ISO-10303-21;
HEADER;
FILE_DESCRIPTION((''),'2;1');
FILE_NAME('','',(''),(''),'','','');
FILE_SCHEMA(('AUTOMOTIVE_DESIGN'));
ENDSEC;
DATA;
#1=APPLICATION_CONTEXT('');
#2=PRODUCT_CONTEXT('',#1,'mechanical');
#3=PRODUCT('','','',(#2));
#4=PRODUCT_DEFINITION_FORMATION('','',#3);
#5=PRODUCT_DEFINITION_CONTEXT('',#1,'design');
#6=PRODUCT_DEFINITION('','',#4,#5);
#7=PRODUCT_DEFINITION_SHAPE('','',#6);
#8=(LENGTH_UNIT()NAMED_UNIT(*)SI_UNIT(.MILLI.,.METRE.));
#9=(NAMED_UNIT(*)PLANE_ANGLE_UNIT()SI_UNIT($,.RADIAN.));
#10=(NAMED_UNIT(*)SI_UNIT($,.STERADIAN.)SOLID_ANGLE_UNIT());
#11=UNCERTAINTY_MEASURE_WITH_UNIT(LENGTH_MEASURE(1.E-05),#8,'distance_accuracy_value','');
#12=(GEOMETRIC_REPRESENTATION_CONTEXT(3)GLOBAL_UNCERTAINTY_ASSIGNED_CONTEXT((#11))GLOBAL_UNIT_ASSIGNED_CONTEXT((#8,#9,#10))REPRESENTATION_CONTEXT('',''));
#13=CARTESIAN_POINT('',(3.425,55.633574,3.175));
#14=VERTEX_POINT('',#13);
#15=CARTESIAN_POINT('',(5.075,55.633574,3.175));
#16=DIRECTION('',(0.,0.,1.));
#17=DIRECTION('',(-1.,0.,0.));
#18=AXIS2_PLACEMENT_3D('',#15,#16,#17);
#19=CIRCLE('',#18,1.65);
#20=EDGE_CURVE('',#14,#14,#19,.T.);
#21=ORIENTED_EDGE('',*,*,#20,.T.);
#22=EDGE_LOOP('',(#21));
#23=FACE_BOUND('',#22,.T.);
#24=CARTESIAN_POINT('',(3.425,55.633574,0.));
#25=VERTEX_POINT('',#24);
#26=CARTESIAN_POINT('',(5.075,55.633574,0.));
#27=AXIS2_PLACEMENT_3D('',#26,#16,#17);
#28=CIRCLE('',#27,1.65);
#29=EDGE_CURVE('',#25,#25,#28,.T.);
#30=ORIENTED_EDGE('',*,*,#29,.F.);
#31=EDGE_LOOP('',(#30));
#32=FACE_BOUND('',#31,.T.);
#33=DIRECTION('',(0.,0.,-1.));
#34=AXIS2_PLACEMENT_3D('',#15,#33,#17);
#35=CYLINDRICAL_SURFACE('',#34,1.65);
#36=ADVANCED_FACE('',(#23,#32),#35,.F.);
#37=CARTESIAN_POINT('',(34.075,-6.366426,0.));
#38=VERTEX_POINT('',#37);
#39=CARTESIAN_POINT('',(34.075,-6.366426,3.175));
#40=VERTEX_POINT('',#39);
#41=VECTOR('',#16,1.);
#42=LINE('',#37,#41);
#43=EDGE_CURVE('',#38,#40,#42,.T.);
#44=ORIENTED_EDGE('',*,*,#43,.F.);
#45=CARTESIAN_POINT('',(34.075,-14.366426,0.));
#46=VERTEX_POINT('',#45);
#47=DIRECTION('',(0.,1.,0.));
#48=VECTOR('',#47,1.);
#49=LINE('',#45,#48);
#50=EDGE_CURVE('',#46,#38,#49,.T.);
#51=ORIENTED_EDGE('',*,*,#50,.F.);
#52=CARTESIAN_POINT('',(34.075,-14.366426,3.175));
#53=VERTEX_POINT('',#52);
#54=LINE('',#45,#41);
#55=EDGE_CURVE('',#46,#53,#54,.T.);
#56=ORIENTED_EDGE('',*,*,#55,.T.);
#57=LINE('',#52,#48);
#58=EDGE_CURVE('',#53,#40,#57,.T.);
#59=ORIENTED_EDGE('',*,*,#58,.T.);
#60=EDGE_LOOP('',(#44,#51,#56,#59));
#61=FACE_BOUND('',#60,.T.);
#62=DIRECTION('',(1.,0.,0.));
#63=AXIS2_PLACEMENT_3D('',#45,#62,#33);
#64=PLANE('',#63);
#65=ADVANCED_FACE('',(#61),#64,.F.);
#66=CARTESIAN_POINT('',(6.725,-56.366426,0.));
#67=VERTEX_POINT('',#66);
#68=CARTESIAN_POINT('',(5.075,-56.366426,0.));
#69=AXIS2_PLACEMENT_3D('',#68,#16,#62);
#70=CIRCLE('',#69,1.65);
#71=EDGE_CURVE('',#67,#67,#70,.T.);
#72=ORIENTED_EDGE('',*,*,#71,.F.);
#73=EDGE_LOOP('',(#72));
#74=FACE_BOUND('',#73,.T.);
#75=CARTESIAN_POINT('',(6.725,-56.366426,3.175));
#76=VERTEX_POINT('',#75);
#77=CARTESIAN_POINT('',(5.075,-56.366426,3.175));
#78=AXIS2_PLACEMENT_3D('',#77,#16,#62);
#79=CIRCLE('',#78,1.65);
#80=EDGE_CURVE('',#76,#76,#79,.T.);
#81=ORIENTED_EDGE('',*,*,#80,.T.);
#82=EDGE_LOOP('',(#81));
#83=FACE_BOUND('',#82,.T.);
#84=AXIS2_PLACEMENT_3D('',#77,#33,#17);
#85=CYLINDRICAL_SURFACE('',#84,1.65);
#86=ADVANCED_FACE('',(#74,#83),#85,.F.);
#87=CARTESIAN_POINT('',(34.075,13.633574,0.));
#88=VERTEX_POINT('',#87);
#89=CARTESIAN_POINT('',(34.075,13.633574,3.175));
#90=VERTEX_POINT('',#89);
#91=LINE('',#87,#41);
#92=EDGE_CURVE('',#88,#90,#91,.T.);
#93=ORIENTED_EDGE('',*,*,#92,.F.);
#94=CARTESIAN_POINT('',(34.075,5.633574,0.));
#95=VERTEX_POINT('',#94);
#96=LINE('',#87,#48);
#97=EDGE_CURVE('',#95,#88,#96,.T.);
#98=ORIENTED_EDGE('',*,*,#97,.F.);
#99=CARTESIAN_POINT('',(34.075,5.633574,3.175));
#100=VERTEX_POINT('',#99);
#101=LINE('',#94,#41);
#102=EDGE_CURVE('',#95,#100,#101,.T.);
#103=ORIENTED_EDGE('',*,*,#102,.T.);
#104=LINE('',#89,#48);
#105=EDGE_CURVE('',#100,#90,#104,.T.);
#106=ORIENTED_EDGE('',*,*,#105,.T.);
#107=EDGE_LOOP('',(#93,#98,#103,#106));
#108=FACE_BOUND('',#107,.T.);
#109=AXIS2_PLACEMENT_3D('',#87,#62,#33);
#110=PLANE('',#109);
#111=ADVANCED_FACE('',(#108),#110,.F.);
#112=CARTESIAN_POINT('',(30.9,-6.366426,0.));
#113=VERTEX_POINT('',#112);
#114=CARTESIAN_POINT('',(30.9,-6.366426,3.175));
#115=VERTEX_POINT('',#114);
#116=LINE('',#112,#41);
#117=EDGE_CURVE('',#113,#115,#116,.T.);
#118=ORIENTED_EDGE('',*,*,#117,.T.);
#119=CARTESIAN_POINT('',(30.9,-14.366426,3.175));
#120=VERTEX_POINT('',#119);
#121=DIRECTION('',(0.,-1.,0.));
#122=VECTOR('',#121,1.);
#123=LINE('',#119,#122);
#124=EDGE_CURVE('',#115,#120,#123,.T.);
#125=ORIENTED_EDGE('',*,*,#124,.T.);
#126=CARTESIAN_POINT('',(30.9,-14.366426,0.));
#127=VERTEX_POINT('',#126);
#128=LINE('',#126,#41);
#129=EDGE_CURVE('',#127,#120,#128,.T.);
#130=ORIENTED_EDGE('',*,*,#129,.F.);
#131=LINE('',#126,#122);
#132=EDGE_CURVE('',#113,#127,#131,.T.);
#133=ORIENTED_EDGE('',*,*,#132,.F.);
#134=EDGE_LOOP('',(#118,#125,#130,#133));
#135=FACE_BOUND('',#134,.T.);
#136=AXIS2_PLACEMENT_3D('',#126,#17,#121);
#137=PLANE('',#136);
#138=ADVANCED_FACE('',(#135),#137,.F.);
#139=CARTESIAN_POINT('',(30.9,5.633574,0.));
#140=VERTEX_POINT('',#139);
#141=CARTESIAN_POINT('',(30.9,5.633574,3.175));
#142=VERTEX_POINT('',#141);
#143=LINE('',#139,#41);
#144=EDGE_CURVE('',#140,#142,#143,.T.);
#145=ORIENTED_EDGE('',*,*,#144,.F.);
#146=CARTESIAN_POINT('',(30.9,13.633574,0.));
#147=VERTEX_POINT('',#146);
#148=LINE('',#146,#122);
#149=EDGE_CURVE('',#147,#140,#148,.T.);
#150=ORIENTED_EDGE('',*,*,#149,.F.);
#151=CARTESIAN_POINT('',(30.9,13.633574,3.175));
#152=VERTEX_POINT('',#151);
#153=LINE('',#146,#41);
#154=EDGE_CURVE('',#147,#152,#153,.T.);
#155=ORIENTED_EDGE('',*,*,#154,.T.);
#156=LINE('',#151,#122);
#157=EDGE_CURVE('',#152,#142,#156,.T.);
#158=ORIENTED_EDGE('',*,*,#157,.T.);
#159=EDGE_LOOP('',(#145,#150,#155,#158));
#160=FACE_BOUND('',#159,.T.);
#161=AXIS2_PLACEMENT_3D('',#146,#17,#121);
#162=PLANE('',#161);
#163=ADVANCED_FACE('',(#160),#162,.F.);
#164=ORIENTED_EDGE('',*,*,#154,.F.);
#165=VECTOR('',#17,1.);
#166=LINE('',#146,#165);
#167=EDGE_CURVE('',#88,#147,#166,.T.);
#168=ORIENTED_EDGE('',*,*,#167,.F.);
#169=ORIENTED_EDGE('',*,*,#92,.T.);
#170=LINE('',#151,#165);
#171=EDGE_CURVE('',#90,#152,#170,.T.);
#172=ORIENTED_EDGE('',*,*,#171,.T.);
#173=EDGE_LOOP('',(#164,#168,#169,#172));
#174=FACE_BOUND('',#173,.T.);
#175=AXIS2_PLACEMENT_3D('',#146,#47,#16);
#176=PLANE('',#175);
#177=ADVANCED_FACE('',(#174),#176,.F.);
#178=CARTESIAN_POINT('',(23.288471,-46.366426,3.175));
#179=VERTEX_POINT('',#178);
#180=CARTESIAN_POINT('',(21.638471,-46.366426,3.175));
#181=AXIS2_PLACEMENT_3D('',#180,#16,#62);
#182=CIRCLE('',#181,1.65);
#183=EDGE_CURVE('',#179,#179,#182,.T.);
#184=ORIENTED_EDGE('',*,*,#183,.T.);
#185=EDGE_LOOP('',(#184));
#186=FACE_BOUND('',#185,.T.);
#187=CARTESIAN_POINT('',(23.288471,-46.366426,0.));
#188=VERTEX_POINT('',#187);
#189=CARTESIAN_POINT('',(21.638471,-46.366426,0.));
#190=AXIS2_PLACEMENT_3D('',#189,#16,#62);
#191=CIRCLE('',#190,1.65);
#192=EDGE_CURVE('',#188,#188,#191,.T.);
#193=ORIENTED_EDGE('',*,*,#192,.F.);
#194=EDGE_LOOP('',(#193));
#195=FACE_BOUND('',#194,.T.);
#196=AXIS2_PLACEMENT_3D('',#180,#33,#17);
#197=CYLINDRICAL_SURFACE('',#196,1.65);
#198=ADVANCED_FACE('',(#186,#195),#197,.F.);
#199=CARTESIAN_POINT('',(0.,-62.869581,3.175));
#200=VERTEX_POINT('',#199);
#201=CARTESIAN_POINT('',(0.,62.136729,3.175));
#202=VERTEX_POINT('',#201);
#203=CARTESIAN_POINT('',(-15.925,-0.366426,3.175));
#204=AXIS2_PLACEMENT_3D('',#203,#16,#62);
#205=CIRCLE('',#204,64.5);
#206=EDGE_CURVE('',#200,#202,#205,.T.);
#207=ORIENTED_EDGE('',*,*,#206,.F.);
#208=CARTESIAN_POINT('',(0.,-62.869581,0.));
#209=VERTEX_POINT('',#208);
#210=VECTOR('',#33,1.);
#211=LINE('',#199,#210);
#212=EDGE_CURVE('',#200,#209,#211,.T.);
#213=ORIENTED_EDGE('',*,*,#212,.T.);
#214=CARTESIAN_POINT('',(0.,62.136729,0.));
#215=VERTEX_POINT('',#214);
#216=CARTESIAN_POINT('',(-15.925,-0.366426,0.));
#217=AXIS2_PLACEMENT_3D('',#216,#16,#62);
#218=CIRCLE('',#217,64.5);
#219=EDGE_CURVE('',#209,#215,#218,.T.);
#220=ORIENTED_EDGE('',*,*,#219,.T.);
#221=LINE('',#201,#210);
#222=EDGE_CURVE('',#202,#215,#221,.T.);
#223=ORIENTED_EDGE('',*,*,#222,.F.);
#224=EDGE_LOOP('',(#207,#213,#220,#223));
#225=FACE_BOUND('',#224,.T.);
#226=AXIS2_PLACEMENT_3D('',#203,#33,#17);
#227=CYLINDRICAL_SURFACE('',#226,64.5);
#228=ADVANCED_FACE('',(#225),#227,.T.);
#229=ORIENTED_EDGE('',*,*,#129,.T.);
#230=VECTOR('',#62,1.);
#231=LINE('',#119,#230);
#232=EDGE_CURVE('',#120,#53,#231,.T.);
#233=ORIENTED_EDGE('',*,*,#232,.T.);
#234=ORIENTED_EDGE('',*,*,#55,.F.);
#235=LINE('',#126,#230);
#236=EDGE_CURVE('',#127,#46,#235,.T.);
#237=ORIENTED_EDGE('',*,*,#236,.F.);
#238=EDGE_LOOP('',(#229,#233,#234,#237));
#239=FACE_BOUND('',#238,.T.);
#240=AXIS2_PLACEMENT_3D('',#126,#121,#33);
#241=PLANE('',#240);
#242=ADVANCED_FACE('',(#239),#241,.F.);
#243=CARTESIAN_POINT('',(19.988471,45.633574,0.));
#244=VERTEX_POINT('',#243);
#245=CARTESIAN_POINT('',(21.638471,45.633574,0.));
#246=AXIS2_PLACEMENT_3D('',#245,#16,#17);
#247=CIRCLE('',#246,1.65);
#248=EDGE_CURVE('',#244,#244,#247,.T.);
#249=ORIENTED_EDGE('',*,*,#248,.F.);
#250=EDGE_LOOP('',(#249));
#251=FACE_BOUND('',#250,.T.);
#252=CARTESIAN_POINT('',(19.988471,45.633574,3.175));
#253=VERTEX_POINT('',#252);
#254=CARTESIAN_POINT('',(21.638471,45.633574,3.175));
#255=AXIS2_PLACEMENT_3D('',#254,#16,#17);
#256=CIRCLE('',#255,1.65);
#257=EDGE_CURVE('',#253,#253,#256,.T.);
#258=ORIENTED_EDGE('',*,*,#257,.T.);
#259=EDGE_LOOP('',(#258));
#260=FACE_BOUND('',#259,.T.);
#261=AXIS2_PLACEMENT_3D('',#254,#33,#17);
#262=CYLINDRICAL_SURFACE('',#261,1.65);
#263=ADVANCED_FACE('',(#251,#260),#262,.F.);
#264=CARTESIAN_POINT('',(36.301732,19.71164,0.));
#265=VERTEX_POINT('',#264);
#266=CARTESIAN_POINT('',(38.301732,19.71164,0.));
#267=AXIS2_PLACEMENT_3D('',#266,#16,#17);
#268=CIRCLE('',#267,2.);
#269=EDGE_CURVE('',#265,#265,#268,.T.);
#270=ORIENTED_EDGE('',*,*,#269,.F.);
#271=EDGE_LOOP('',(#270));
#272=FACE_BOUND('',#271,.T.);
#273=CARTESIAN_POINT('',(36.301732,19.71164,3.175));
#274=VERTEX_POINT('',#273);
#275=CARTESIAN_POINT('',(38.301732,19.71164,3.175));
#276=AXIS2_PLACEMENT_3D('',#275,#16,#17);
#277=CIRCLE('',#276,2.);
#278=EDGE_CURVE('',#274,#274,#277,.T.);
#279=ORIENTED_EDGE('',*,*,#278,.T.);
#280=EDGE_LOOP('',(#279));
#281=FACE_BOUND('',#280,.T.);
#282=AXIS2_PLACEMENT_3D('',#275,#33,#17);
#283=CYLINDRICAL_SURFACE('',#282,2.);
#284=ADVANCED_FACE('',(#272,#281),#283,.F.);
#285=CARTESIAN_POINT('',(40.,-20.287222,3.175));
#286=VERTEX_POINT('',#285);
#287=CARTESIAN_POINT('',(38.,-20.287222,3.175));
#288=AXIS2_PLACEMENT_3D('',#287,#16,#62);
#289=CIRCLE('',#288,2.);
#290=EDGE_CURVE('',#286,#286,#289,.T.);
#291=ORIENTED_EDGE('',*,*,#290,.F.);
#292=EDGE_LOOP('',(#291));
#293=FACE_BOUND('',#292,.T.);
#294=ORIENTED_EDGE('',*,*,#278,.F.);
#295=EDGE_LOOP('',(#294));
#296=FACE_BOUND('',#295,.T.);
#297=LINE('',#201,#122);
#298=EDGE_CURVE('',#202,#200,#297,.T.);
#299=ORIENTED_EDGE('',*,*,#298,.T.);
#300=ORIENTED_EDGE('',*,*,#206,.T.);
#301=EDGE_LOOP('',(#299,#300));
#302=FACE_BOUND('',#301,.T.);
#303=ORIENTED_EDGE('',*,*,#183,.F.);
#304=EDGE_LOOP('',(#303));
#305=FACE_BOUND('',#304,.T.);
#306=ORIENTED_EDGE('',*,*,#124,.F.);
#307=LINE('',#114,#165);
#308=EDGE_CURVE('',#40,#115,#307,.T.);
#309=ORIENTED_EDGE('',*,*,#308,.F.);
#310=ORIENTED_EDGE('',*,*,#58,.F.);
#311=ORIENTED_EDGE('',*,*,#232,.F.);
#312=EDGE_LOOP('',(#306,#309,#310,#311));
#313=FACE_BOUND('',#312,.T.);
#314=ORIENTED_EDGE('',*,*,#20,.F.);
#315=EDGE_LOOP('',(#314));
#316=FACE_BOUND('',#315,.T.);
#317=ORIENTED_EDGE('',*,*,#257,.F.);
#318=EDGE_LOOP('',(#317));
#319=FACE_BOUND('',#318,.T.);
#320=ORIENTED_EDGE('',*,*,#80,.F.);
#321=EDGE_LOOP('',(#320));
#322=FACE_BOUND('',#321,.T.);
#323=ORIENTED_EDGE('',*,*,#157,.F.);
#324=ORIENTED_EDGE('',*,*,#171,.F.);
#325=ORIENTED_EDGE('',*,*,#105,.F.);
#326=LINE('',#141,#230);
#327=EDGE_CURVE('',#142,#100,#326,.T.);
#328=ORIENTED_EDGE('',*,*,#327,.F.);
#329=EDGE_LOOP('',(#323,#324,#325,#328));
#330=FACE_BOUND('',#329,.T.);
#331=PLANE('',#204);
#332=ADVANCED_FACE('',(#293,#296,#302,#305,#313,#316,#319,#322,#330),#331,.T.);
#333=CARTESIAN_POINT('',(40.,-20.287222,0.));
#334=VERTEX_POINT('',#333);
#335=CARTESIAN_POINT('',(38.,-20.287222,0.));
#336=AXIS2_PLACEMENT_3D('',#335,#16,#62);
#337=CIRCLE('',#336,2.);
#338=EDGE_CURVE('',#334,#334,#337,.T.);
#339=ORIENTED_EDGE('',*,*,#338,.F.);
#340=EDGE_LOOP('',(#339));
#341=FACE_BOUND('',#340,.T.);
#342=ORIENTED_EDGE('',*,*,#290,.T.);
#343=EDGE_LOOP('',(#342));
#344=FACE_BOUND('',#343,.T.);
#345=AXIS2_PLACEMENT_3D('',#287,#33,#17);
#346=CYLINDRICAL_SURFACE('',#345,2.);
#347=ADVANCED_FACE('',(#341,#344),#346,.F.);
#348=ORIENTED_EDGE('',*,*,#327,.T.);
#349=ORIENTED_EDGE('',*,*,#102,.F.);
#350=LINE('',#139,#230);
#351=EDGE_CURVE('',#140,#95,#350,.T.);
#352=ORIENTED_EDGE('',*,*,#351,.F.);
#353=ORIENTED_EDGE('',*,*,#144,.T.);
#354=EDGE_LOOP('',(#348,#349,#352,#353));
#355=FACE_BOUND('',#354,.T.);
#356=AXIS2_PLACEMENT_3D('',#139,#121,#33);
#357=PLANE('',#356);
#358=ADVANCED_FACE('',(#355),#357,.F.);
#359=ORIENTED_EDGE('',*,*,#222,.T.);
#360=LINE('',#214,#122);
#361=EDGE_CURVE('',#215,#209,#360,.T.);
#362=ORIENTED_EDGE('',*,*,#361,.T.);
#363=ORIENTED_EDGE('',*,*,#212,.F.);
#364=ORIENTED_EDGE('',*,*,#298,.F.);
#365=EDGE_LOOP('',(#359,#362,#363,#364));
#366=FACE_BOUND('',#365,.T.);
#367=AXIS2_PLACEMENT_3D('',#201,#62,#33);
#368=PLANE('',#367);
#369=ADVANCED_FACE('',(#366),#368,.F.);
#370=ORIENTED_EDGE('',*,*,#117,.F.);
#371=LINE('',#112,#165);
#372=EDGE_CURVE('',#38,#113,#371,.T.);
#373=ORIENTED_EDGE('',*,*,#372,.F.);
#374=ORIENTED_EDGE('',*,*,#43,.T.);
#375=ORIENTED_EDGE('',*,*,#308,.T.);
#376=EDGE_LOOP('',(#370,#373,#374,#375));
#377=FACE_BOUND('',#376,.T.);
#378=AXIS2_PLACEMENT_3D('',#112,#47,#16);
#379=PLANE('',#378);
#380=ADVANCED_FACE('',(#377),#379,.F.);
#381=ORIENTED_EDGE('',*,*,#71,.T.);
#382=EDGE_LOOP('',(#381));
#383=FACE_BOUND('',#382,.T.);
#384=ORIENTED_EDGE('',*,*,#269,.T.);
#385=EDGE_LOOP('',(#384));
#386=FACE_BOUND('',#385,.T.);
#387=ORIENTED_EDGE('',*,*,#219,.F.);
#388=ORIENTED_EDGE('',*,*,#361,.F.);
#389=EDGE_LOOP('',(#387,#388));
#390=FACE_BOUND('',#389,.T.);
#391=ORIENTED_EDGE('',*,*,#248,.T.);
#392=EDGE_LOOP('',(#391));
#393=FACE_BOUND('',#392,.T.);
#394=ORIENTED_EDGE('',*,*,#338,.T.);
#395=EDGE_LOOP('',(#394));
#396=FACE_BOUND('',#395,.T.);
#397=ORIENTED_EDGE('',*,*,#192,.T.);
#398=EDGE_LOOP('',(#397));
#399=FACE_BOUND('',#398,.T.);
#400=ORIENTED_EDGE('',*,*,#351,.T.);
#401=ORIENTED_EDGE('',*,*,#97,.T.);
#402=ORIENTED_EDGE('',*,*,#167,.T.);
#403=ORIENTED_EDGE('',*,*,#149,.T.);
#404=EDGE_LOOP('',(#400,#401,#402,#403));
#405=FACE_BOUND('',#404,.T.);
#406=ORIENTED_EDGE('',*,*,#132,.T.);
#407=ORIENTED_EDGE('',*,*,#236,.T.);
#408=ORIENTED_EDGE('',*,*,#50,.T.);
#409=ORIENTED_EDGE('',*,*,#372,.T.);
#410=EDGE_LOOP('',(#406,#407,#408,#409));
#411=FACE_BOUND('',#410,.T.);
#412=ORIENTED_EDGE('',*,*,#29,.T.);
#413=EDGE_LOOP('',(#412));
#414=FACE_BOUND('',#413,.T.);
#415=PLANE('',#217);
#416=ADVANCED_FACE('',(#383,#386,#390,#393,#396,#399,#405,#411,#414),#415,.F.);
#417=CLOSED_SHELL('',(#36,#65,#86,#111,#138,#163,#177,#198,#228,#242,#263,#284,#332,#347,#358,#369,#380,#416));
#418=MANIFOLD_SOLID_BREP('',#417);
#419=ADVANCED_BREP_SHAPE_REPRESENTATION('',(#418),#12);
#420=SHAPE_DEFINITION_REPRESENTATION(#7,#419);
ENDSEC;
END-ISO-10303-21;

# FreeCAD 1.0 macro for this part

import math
import FreeCAD as App
import Part
import Sketcher
from FreeCAD import Vector


def add_polygon(sketch, points):
    """Adds a closed chain of lines whose ends are joined by coincident constraints."""
    first, n = sketch.GeometryCount, len(points)
    for a, b in zip(points, points[1:] + points[:1]):
        sketch.addGeometry(Part.LineSegment(App.Vector(*a, 0), App.Vector(*b, 0)), False)
    for i in range(n):
        sketch.addConstraint(Sketcher.Constraint("Coincident", first + i, 2, first + (i + 1) % n, 1))

doc = App.newDocument("Part")
params = doc.addObject("Spreadsheet::Sheet", "Params")
for row, (alias, value) in enumerate([
    ("sketch1_diameter", "4 mm"),
    ("sketch1_diameter2", "3.3 mm"),
    ("sketch1_radius", "64.5 mm"),
    ("pad1_length", "3.175 mm"),
    ("sketch2_height", "8 mm"),
], start=1):
    params.set(f"A{row}", alias)
    params.set(f"B{row}", "=" + value)
    params.setAlias(f"B{row}", alias)

body = doc.addObject("PartDesign::Body", "Body")

# Sketch on XY plane
sketch1 = body.newObject("Sketcher::SketchObject", "Sketch")
sketch1.AttachmentSupport = (doc.getObject("XY_Plane"), [""])
sketch1.MapMode = "FlatFace"
sketch1.addGeometry([
    Part.LineSegment(Vector(0, 62.136729, 0), Vector(0, -62.869581, 0)),  # 0
    Part.ArcOfCircle(Part.Circle(Vector(-15.925, -0.366426, 0), Vector(0, 0, 1), 64.5), math.radians(-75.7059), math.radians(75.7059)),  # 1
    Part.Circle(Vector(38.301732, 19.71164, 0), Vector(0, 0, 1), 2),  # 2
    Part.Circle(Vector(21.638471, 45.633574, 0), Vector(0, 0, 1), 1.65),  # 3
    Part.Circle(Vector(5.075, 55.633574, 0), Vector(0, 0, 1), 1.65),  # 4
    Part.Circle(Vector(38, -20.287222, 0), Vector(0, 0, 1), 2),  # 5
    Part.Circle(Vector(21.638471, -46.366426, 0), Vector(0, 0, 1), 1.65),  # 6
    Part.Circle(Vector(5.075, -56.366426, 0), Vector(0, 0, 1), 1.65),  # 7
], False)
sketch1.addConstraint([
    Sketcher.Constraint("Coincident", 0, 1, 1, 2),
    Sketcher.Constraint("Coincident", 1, 1, 0, 2),
    Sketcher.Constraint("Vertical", 0),
    Sketcher.Constraint("Equal", 3, 4),
    Sketcher.Constraint("Equal", 2, 5),
    Sketcher.Constraint("Equal", 4, 6),
    Sketcher.Constraint("Equal", 6, 7),
    Sketcher.Constraint("PointOnObject", 0, 1, -2),
    Sketcher.Constraint("Vertical", 3, 3, 6, 3),
    Sketcher.Constraint("Vertical", 4, 3, 7, 3),
    Sketcher.Constraint("Diameter", 2, 4.0),
    Sketcher.Constraint("Diameter", 3, 3.3),
    Sketcher.Constraint("Radius", 1, 64.5),
    Sketcher.Constraint("DistanceX", -1, 1, 5, 3, 38.0),
    Sketcher.Constraint("DistanceY", 1, 3, 3, 3, 46.0),
    Sketcher.Constraint("DistanceY", 3, 3, 4, 3, 10.0),
    Sketcher.Constraint("DistanceX", 1, 3, 4, 3, 21.0),
    Sketcher.Constraint("DistanceY", 6, 3, 1, 3, 46.0),
    Sketcher.Constraint("DistanceY", 7, 3, 6, 3, 10.0),
    Sketcher.Constraint("DistanceX", 1, 3, -1, 1, 15.925),
    Sketcher.Constraint("DistanceX", -1, 1, 2, 3, 38.301732),
    Sketcher.Constraint("DistanceY", -1, 1, 2, 3, 19.71164),
    Sketcher.Constraint("DistanceX", -1, 1, 3, 3, 21.638471),
    Sketcher.Constraint("DistanceY", -1, 1, 0, 1, 62.136729),
    Sketcher.Constraint("DistanceY", 5, 3, 2, 3, 39.998862),
])
sketch1.setExpression("Constraints[10]", "Params.sketch1_diameter")
sketch1.setExpression("Constraints[11]", "Params.sketch1_diameter2")
sketch1.setExpression("Constraints[12]", "Params.sketch1_radius")
pad1 = body.newObject("PartDesign::Pad", "Pad")
pad1.Profile = sketch1
pad1.setExpression("Length", "Params.pad1_length")

# Sketch on XY plane
sketch2 = body.newObject("Sketcher::SketchObject", "Sketch001")
sketch2.AttachmentSupport = (doc.getObject("XY_Plane"), [""])
sketch2.MapMode = "FlatFace"
sketch2.AttachmentOffset = App.Placement(Vector(0, 0, 3.175), App.Rotation())
add_polygon(sketch2, [(30.9, 13.633574), (30.9, 5.633574), (34.075, 5.633574), (34.075, 13.633574)])  # lines 0-3
add_polygon(sketch2, [(30.9, -6.366426), (30.9, -14.366426), (34.075, -14.366426), (34.075, -6.366426)])  # lines 4-7
sketch2.addConstraint([
    Sketcher.Constraint("Vertical", 0),
    Sketcher.Constraint("Horizontal", 1),
    Sketcher.Constraint("Vertical", 2),
    Sketcher.Constraint("Horizontal", 3),
    Sketcher.Constraint("Vertical", 4),
    Sketcher.Constraint("Horizontal", 5),
    Sketcher.Constraint("Vertical", 6),
    Sketcher.Constraint("Horizontal", 7),
    Sketcher.Constraint("Vertical", 3, 2, 4, 2),
    Sketcher.Constraint("Vertical", 2, 2, 5, 2),
    Sketcher.Constraint("Equal", 2, 4),
    Sketcher.Constraint("DistanceY", 0, 2, 0, 1, 8.0),
    Sketcher.Constraint("DistanceY", 4, 2, 0, 2, 20.0),
    Sketcher.Constraint("DistanceX", -1, 1, 0, 2, 30.9),
    Sketcher.Constraint("DistanceX", 1, 1, 1, 2, 3.175),
    Sketcher.Constraint("DistanceY", -1, 1, 0, 2, 5.633574),
])
sketch2.setExpression("Constraints[19]", "Params.sketch2_height")
pocket1 = body.newObject("PartDesign::Pocket", "Pocket")
pocket1.Profile = sketch2
pocket1.Type = "ThroughAll"

doc.recompute()
